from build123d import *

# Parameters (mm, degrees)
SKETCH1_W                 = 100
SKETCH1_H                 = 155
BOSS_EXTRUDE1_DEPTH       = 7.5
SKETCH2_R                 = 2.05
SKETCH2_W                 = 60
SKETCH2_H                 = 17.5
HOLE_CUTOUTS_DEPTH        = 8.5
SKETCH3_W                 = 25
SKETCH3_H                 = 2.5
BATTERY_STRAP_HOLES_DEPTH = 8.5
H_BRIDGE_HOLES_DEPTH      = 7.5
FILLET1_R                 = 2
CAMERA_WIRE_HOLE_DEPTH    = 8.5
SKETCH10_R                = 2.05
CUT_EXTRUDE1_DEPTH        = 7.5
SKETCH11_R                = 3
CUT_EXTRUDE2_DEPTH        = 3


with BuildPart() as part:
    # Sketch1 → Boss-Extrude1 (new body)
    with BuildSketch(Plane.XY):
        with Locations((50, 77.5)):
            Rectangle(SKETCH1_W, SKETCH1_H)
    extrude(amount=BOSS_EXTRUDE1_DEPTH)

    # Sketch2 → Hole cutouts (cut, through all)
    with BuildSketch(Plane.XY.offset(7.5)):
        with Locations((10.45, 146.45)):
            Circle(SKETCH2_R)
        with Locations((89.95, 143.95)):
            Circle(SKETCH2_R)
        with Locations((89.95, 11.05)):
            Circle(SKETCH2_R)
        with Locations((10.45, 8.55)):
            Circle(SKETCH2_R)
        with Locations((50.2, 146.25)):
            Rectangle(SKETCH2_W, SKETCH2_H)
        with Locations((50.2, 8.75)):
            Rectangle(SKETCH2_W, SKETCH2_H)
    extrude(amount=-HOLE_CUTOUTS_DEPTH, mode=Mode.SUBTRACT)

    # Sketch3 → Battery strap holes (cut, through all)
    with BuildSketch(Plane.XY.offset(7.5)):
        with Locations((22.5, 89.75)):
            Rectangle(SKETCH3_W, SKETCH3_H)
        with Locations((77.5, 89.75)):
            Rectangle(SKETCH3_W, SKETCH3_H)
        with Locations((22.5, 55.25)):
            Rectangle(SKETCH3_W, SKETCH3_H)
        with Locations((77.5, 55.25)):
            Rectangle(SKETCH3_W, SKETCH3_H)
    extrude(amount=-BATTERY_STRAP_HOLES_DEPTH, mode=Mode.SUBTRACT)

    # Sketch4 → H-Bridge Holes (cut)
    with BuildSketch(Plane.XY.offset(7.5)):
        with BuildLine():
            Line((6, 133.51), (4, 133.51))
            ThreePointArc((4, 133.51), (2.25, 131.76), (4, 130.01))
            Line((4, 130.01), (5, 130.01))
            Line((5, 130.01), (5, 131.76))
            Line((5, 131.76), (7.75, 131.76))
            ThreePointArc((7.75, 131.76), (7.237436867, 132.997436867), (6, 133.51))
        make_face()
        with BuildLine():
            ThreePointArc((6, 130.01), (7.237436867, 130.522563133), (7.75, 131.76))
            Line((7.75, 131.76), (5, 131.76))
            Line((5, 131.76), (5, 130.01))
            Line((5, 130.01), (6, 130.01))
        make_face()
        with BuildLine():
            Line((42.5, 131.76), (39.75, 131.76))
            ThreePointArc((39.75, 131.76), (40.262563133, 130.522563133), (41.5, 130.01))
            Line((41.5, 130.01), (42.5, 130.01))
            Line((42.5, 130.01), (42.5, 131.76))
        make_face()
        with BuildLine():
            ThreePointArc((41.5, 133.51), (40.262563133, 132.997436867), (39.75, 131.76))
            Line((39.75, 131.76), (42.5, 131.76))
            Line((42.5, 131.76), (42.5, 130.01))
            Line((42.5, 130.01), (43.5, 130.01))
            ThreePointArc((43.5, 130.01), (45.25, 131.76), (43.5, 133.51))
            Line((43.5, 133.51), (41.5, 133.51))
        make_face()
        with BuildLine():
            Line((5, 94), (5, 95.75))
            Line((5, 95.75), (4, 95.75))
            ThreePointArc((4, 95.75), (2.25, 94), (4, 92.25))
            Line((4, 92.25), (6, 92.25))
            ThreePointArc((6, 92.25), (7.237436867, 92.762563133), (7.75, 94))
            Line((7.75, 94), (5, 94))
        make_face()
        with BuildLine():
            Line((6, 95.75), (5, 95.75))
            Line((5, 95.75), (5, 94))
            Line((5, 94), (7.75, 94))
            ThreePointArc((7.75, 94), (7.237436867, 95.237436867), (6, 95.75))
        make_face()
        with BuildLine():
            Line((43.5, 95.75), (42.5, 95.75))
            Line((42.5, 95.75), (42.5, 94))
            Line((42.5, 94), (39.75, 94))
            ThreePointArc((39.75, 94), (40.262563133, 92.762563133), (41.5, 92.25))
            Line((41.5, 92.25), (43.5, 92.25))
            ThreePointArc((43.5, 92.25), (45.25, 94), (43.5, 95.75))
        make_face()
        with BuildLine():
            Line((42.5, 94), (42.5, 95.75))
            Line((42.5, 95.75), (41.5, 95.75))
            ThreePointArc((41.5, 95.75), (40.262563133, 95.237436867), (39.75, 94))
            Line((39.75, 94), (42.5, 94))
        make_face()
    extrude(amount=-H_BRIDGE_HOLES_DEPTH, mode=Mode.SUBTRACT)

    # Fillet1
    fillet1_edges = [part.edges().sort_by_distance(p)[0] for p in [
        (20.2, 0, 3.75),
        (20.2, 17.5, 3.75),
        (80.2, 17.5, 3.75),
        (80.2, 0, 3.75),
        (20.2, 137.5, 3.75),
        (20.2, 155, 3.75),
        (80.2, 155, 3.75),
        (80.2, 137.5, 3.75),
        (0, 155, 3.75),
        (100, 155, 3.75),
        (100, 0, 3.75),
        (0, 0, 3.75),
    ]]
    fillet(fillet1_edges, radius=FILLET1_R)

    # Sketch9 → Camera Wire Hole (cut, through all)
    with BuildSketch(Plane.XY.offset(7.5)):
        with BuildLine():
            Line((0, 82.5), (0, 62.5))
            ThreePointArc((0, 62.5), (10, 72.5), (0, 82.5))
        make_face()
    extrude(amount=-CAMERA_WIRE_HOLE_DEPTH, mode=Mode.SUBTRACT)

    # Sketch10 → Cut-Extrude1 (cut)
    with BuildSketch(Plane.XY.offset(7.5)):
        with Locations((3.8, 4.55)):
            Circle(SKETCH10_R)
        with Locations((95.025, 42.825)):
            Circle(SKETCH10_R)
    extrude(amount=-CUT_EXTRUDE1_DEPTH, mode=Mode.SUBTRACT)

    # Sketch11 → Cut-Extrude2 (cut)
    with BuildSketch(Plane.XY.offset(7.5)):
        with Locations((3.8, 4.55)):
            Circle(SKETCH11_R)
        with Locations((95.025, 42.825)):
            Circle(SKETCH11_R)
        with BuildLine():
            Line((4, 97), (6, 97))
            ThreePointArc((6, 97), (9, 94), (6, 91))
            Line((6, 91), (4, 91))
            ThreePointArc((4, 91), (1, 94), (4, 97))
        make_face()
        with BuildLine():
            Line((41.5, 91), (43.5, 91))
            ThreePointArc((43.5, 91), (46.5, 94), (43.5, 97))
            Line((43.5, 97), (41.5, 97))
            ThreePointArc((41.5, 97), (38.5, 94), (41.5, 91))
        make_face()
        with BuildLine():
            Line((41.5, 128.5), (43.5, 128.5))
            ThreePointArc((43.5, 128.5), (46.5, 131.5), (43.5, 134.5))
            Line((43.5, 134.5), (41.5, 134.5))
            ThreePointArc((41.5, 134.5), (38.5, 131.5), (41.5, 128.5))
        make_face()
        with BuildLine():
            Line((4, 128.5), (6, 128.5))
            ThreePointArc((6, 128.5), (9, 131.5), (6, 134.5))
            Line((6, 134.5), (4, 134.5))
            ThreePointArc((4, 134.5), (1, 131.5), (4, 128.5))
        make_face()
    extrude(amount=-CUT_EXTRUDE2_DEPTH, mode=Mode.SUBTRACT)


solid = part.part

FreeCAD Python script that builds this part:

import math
import FreeCAD as App
import Part
import Sketcher

V = App.Vector
Q = App.Units.Quantity


def edges_at(feature, points):
    """Names of the edges that pass closest to the given points."""
    edges = feature.Shape.Edges
    near = lambda p: min(range(len(edges)), key=lambda i: edges[i].distToShape(Part.Vertex(*p))[0])
    return sorted({f"Edge{near(p) + 1}" for p in points})


def add_polygon(sketch, points):
    """Adds a closed chain of lines whose ends are joined by coincident constraints."""
    first, n = sketch.GeometryCount, len(points)
    for a, b in zip(points, points[1:] + points[:1]):
        sketch.addGeometry(Part.LineSegment(App.Vector(*a, 0), App.Vector(*b, 0)), False)
    for i in range(n):
        sketch.addConstraint(Sketcher.Constraint("Coincident", first + i, 2, first + (i + 1) % n, 1))

doc = App.newDocument("Part")
params = doc.addObject("Spreadsheet::Sheet", "Params")
for row, (alias, value) in enumerate([
    ("sketch1_width", "100 mm"),
    ("sketch1_height", "155 mm"),
    ("pad1_length", "7.5 mm"),
    ("sketch2_diameter", "4.1 mm"),
    ("sketch2_width", "60 mm"),
    ("sketch2_height", "17.5 mm"),
    ("sketch3_width", "25 mm"),
    ("sketch3_height", "2.5 mm"),
    ("sketch4_width", "2 mm"),
    ("sketch4_radius", "1.75 mm"),
    ("pocket3_length", "7.5 mm"),
    ("fillet_radius", "2 mm"),
    ("sketch5_radius", "10 mm"),
    ("sketch6_diameter", "4.1 mm"),
    ("pocket5_length", "7.5 mm"),
    ("sketch7_diameter", "6 mm"),
    ("sketch7_width", "2 mm"),
    ("pocket6_length", "3 mm"),
], start=1):
    params.set(f"A{row}", alias)
    params.set(f"B{row}", "=" + value)
    params.setAlias(f"B{row}", alias)

body = doc.addObject("PartDesign::Body", "Body")

# Sketch on XY plane
sketch1 = body.newObject("Sketcher::SketchObject", "Sketch")
sketch1.AttachmentSupport = (doc.getObject("XY_Plane"), [""])
sketch1.MapMode = "FlatFace"
add_polygon(sketch1, [(0, 155), (0, 0), (100, 0), (100, 155)])  # lines 0-3
sketch1.addConstraint([
    Sketcher.Constraint("Vertical", 0),
    Sketcher.Constraint("Horizontal", 1),
    Sketcher.Constraint("Vertical", 2),
    Sketcher.Constraint("Horizontal", 3),
    Sketcher.Constraint("Coincident", 0, 2, -1, 1),
    Sketcher.Constraint("DistanceX", 1, 1, 1, 2, Q("100 mm")),
    Sketcher.Constraint("DistanceY", 0, 2, 0, 1, Q("155 mm")),
])
sketch1.setExpression("Constraints[9]", "Params.sketch1_width")
sketch1.setExpression("Constraints[10]", "Params.sketch1_height")
pad1 = body.newObject("PartDesign::Pad", "Pad")
pad1.Profile = sketch1
pad1.setExpression("Length", "Params.pad1_length")

# Sketch on XY plane
sketch2 = body.newObject("Sketcher::SketchObject", "Sketch001")
sketch2.AttachmentSupport = (doc.getObject("XY_Plane"), [""])
sketch2.MapMode = "FlatFace"
sketch2.AttachmentOffset = App.Placement(V(0, 0, 7.5), App.Rotation())
sketch2.addGeometry(Part.Circle(V(10.4, 146.4, 0), V(0, 0, 1), 2), False)  # 0
sketch2.addGeometry(Part.Circle(V(90, 143.9, 0), V(0, 0, 1), 2), False)  # 1
sketch2.addGeometry(Part.Circle(V(90, 11.1, 0), V(0, 0, 1), 2), False)  # 2
sketch2.addGeometry(Part.Circle(V(10.4, 8.6, 0), V(0, 0, 1), 2), False)  # 3
add_polygon(sketch2, [(20.2, 155), (20.2, 137.5), (80.2, 137.5), (80.2, 155)])  # lines 4-7
add_polygon(sketch2, [(20.2, 17.5), (20.2, 0), (80.2, 0), (80.2, 17.5)])  # lines 8-11
sketch2.addConstraint([
    Sketcher.Constraint("Vertical", 4),
    Sketcher.Constraint("Horizontal", 5),
    Sketcher.Constraint("Vertical", 6),
    Sketcher.Constraint("Horizontal", 7),
    Sketcher.Constraint("Vertical", 8),
    Sketcher.Constraint("Horizontal", 9),
    Sketcher.Constraint("Vertical", 10),
    Sketcher.Constraint("Horizontal", 11),
    Sketcher.Constraint("Equal", 0, 1),
    Sketcher.Constraint("Equal", 1, 2),
    Sketcher.Constraint("Equal", 2, 3),
    Sketcher.Constraint("PointOnObject", 8, 2, -1),
    Sketcher.Constraint("Vertical", 1, 3, 2, 3),
    Sketcher.Constraint("Vertical", 0, 3, 3, 3),
    Sketcher.Constraint("Vertical", 7, 2, 8, 2),
    Sketcher.Constraint("Vertical", 6, 2, 9, 2),
    Sketcher.Constraint("Equal", 6, 8),
    Sketcher.Constraint("Diameter", 0, Q("4.1 mm")),
    Sketcher.Constraint("DistanceX", 5, 1, 5, 2, Q("60 mm")),
    Sketcher.Constraint("DistanceY", 4, 2, 4, 1, Q("17.5 mm")),
    Sketcher.Constraint("DistanceY", -1, 1, 6, 2, Q("155 mm")),
    Sketcher.Constraint("DistanceX", -1, 1, 4, 2, Q("20.2 mm")),
    Sketcher.Constraint("DistanceX", 0, 3, 1, 3, Q("79.5 mm")),
    Sketcher.Constraint("DistanceY", 1, 3, 0, 3, Q("2.5 mm")),
    Sketcher.Constraint("DistanceY", 2, 3, 1, 3, Q("132.9 mm")),
    Sketcher.Constraint("DistanceY", 3, 3, 2, 3, Q("2.5 mm")),
    Sketcher.Constraint("DistanceX", -1, 1, 0, 3, Q("10.45 mm")),
    Sketcher.Constraint("DistanceY", -1, 1, 0, 3, Q("146.45 mm")),
])
sketch2.setExpression("Constraints[25]", "Params.sketch2_diameter")
sketch2.setExpression("Constraints[26]", "Params.sketch2_width")
sketch2.setExpression("Constraints[27]", "Params.sketch2_height")
pocket1 = body.newObject("PartDesign::Pocket", "Pocket")
pocket1.Profile = sketch2
pocket1.Type = "ThroughAll"

# Sketch on XY plane
sketch3 = body.newObject("Sketcher::SketchObject", "Sketch002")
sketch3.AttachmentSupport = (doc.getObject("XY_Plane"), [""])
sketch3.MapMode = "FlatFace"
sketch3.AttachmentOffset = App.Placement(V(0, 0, 7.5), App.Rotation())
add_polygon(sketch3, [(10, 91), (10, 88.5), (35, 88.5), (35, 91)])  # lines 0-3
add_polygon(sketch3, [(65, 91), (65, 88.5), (90, 88.5), (90, 91)])  # lines 4-7
add_polygon(sketch3, [(10, 56.5), (10, 54), (35, 54), (35, 56.5)])  # lines 8-11
add_polygon(sketch3, [(65, 56.5), (65, 54), (90, 54), (90, 56.5)])  # lines 12-15
sketch3.addConstraint([
    Sketcher.Constraint("Vertical", 0),
    Sketcher.Constraint("Horizontal", 1),
    Sketcher.Constraint("Vertical", 2),
    Sketcher.Constraint("Horizontal", 3),
    Sketcher.Constraint("Vertical", 4),
    Sketcher.Constraint("Horizontal", 5),
    Sketcher.Constraint("Vertical", 6),
    Sketcher.Constraint("Horizontal", 7),
    Sketcher.Constraint("Vertical", 8),
    Sketcher.Constraint("Horizontal", 9),
    Sketcher.Constraint("Vertical", 10),
    Sketcher.Constraint("Horizontal", 11),
    Sketcher.Constraint("Vertical", 12),
    Sketcher.Constraint("Horizontal", 13),
    Sketcher.Constraint("Vertical", 14),
    Sketcher.Constraint("Horizontal", 15),
    Sketcher.Constraint("Horizontal", 1, 2, 4, 2),
    Sketcher.Constraint("Horizontal", 3, 2, 6, 2),
    Sketcher.Constraint("Horizontal", 9, 2, 12, 2),
    Sketcher.Constraint("Horizontal", 11, 2, 14, 2),
    Sketcher.Constraint("Vertical", 3, 2, 8, 2),
    Sketcher.Constraint("Vertical", 2, 2, 9, 2),
    Sketcher.Constraint("Vertical", 7, 2, 12, 2),
    Sketcher.Constraint("Vertical", 6, 2, 13, 2),
    Sketcher.Constraint("Equal", 3, 5),
    Sketcher.Constraint("Equal", 6, 8),
    Sketcher.Constraint("DistanceX", 1, 1, 1, 2, Q("25 mm")),
    Sketcher.Constraint("DistanceY", 0, 2, 0, 1, Q("2.5 mm")),
    Sketcher.Constraint("DistanceX", -1, 1, 0, 2, Q("10 mm")),
    Sketcher.Constraint("DistanceY", -1, 1, 2, 2, Q("91 mm")),
    Sketcher.Constraint("DistanceX", -1, 1, 4, 2, Q("65 mm")),
    Sketcher.Constraint("DistanceY", -1, 1, 8, 2, Q("54 mm")),
])
sketch3.setExpression("Constraints[42]", "Params.sketch3_width")
sketch3.setExpression("Constraints[43]", "Params.sketch3_height")
pocket2 = body.newObject("PartDesign::Pocket", "Pocket001")
pocket2.Profile = sketch3
pocket2.Type = "ThroughAll"

# Sketch on XY plane
sketch4 = body.newObject("Sketcher::SketchObject", "Sketch003")
sketch4.AttachmentSupport = (doc.getObject("XY_Plane"), [""])
sketch4.MapMode = "FlatFace"
sketch4.AttachmentOffset = App.Placement(V(0, 0, 7.5), App.Rotation())
sketch4.addGeometry([
    Part.LineSegment(V(6, 133.5, 0), V(4, 133.5, 0)),  # 0
    Part.ArcOfCircle(Part.Circle(V(4, 131.8, 0), V(0, 0, 1), 1.8), math.radians(90), math.radians(270)),  # 1
    Part.LineSegment(V(4, 130, 0), V(6, 130, 0)),  # 2
    Part.ArcOfCircle(Part.Circle(V(6, 131.8, 0), V(0, 0, 1), 1.8), math.radians(-90), math.radians(0)),  # 3
    Part.ArcOfCircle(Part.Circle(V(6, 131.8, 0), V(0, 0, 1), 1.8), math.radians(0), math.radians(90)),  # 4
    Part.ArcOfCircle(Part.Circle(V(41.5, 131.8, 0), V(0, 0, 1), 1.8), math.radians(180), math.radians(270)),  # 5
    Part.LineSegment(V(41.5, 130, 0), V(43.5, 130, 0)),  # 6
    Part.ArcOfCircle(Part.Circle(V(43.5, 131.8, 0), V(0, 0, 1), 1.8), math.radians(-90), math.radians(90)),  # 7
    Part.LineSegment(V(43.5, 133.5, 0), V(41.5, 133.5, 0)),  # 8
    Part.ArcOfCircle(Part.Circle(V(41.5, 131.8, 0), V(0, 0, 1), 1.8), math.radians(90), math.radians(180)),  # 9
    Part.ArcOfCircle(Part.Circle(V(4, 94, 0), V(0, 0, 1), 1.8), math.radians(90), math.radians(270)),  # 10
    Part.LineSegment(V(4, 92.2, 0), V(6, 92.2, 0)),  # 11
    Part.ArcOfCircle(Part.Circle(V(6, 94, 0), V(0, 0, 1), 1.8), math.radians(-90), math.radians(0)),  # 12
    Part.ArcOfCircle(Part.Circle(V(6, 94, 0), V(0, 0, 1), 1.8), math.radians(0), math.radians(90)),  # 13
    Part.LineSegment(V(6, 95.8, 0), V(4, 95.8, 0)),  # 14
    Part.LineSegment(V(43.5, 95.8, 0), V(41.5, 95.8, 0)),  # 15
    Part.ArcOfCircle(Part.Circle(V(41.5, 94, 0), V(0, 0, 1), 1.8), math.radians(90), math.radians(180)),  # 16
    Part.ArcOfCircle(Part.Circle(V(41.5, 94, 0), V(0, 0, 1), 1.8), math.radians(180), math.radians(270)),  # 17
    Part.LineSegment(V(41.5, 92.2, 0), V(43.5, 92.2, 0)),  # 18
    Part.ArcOfCircle(Part.Circle(V(43.5, 94, 0), V(0, 0, 1), 1.8), math.radians(-90), math.radians(90)),  # 19
], False)
sketch4.addConstraint([
    Sketcher.Constraint("Tangent", 0, 2, 1, 1),
    Sketcher.Constraint("Tangent", 1, 2, 2, 1),
    Sketcher.Constraint("Tangent", 2, 2, 3, 1),
    Sketcher.Constraint("Tangent", 3, 2, 4, 1),
    Sketcher.Constraint("Tangent", 4, 2, 0, 1),
    Sketcher.Constraint("Tangent", 5, 2, 6, 1),
    Sketcher.Constraint("Tangent", 6, 2, 7, 1),
    Sketcher.Constraint("Tangent", 7, 2, 8, 1),
    Sketcher.Constraint("Tangent", 8, 2, 9, 1),
    Sketcher.Constraint("Tangent", 9, 2, 5, 1),
    Sketcher.Constraint("Tangent", 10, 2, 11, 1),
    Sketcher.Constraint("Tangent", 11, 2, 12, 1),
    Sketcher.Constraint("Tangent", 12, 2, 13, 1),
    Sketcher.Constraint("Tangent", 13, 2, 14, 1),
    Sketcher.Constraint("Tangent", 14, 2, 10, 1),
    Sketcher.Constraint("Tangent", 15, 2, 16, 1),
    Sketcher.Constraint("Tangent", 16, 2, 17, 1),
    Sketcher.Constraint("Tangent", 17, 2, 18, 1),
    Sketcher.Constraint("Tangent", 18, 2, 19, 1),
    Sketcher.Constraint("Tangent", 19, 2, 15, 1),
    Sketcher.Constraint("Horizontal", 0),
    Sketcher.Constraint("Horizontal", 2),
    Sketcher.Constraint("Horizontal", 6),
    Sketcher.Constraint("Horizontal", 8),
    Sketcher.Constraint("Horizontal", 11),
    Sketcher.Constraint("Horizontal", 14),
    Sketcher.Constraint("Horizontal", 15),
    Sketcher.Constraint("Horizontal", 18),
    Sketcher.Constraint("Equal", 1, 3),
    Sketcher.Constraint("Equal", 4, 5),
    Sketcher.Constraint("Equal", 5, 7),
    Sketcher.Constraint("Equal", 9, 10),
    Sketcher.Constraint("Equal", 10, 12),
    Sketcher.Constraint("Equal", 13, 16),
    Sketcher.Constraint("Equal", 16, 17),
    Sketcher.Constraint("Horizontal", 4, 3, 5, 3),
    Sketcher.Constraint("Horizontal", 13, 3, 16, 3),
    Sketcher.Constraint("Horizontal", 9, 3, 3, 2),
    Sketcher.Constraint("Horizontal", 3, 2, 9, 2),
    Sketcher.Constraint("Horizontal", 19, 3, 12, 2),
    Sketcher.Constraint("Horizontal", 12, 2, 16, 2),
    Sketcher.Constraint("Vertical", 1, 3, 10, 3),
    Sketcher.Constraint("Vertical", 4, 3, 12, 3),
    Sketcher.Constraint("Vertical", 9, 3, 16, 3),
    Sketcher.Constraint("Vertical", 7, 3, 19, 3),
    Sketcher.Constraint("Equal", 2, 6),
    Sketcher.Constraint("DistanceX", 0, 2, 0, 1, Q("2 mm")),
    Sketcher.Constraint("Radius", 1, Q("1.75 mm")),
    Sketcher.Constraint("DistanceX", -1, 1, 1, 3, Q("4 mm")),
    Sketcher.Constraint("DistanceY", -1, 1, 10, 3, Q("94 mm")),
    Sketcher.Constraint("DistanceX", 12, 2, 16, 2, Q("32 mm")),
    Sketcher.Constraint("DistanceY", -1, 1, 1, 3, Q("131.76 mm")),
])
sketch4.setExpression("Constraints[46]", "Params.sketch4_width")
sketch4.setExpression("Constraints[47]", "Params.sketch4_radius")
pocket3 = body.newObject("PartDesign::Pocket", "Pocket002")
pocket3.Profile = sketch4
pocket3.setExpression("Length", "Params.pocket3_length")
doc.recompute()

fillet = body.newObject("PartDesign::Fillet", "Fillet")
fillet.Base = (pocket3, edges_at(pocket3, [
    (20.2, 0, 3.75),
    (20.2, 17.5, 3.75),
    (80.2, 17.5, 3.75),
    (80.2, 0, 3.75),
    (20.2, 137.5, 3.75),
    (20.2, 155, 3.75),
    (80.2, 155, 3.75),
    (80.2, 137.5, 3.75),
    (0, 155, 3.75),
    (100, 155, 3.75),
    (100, 0, 3.75),
    (0, 0, 3.75),
]))
fillet.setExpression("Radius", "Params.fillet_radius")

# Sketch on XY plane
sketch5 = body.newObject("Sketcher::SketchObject", "Sketch004")
sketch5.AttachmentSupport = (doc.getObject("XY_Plane"), [""])
sketch5.MapMode = "FlatFace"
sketch5.AttachmentOffset = App.Placement(V(0, 0, 7.5), App.Rotation())
sketch5.addGeometry([
    Part.LineSegment(V(0, 82, 0), V(0, 62, 0)),
    Part.ArcOfCircle(Part.Circle(V(0, 72, 0), V(0, 0, 1), 10), math.radians(-90), math.radians(90)),
], False)
sketch5.addConstraint([
    Sketcher.Constraint("Coincident", 0, 1, 1, 2),
    Sketcher.Constraint("Coincident", 1, 1, 0, 2),
    Sketcher.Constraint("Vertical", 0),
    Sketcher.Constraint("PointOnObject", 1, 3, -2),
    Sketcher.Constraint("PointOnObject", 0, 1, -2),
    Sketcher.Constraint("Radius", 1, Q("10 mm")),
    Sketcher.Constraint("DistanceY", -1, 1, 1, 3, Q("72.5 mm")),
])
sketch5.setExpression("Constraints[5]", "Params.sketch5_radius")
pocket4 = body.newObject("PartDesign::Pocket", "Pocket003")
pocket4.Profile = sketch5
pocket4.Type = "ThroughAll"

# Sketch on XY plane
sketch6 = body.newObject("Sketcher::SketchObject", "Sketch005")
sketch6.AttachmentSupport = (doc.getObject("XY_Plane"), [""])
sketch6.MapMode = "FlatFace"
sketch6.AttachmentOffset = App.Placement(V(0, 0, 7.5), App.Rotation())
sketch6.addGeometry([
    Part.Circle(V(3.8, 4.5, 0), V(0, 0, 1), 2),
    Part.Circle(V(95, 42.8, 0), V(0, 0, 1), 2),
], False)
sketch6.addConstraint([
    Sketcher.Constraint("Equal", 0, 1),
    Sketcher.Constraint("Diameter", 0, Q("4.1 mm")),
    Sketcher.Constraint("DistanceX", -1, 1, 0, 3, Q("3.8 mm")),
    Sketcher.Constraint("DistanceY", -1, 1, 0, 3, Q("4.55 mm")),
    Sketcher.Constraint("DistanceX", -1, 1, 1, 3, Q("95.025 mm")),
    Sketcher.Constraint("DistanceY", -1, 1, 1, 3, Q("42.825 mm")),
])
sketch6.setExpression("Constraints[1]", "Params.sketch6_diameter")
pocket5 = body.newObject("PartDesign::Pocket", "Pocket004")
pocket5.Profile = sketch6
pocket5.setExpression("Length", "Params.pocket5_length")

# Sketch on XY plane
sketch7 = body.newObject("Sketcher::SketchObject", "Sketch006")
sketch7.AttachmentSupport = (doc.getObject("XY_Plane"), [""])
sketch7.MapMode = "FlatFace"
sketch7.AttachmentOffset = App.Placement(V(0, 0, 7.5), App.Rotation())
sketch7.addGeometry([
    Part.Circle(V(3.8, 4.5, 0), V(0, 0, 1), 3),  # 0
    Part.Circle(V(95, 42.8, 0), V(0, 0, 1), 3),  # 1
    Part.LineSegment(V(6, 97, 0), V(4, 97, 0)),  # 2
    Part.ArcOfCircle(Part.Circle(V(4, 94, 0), V(0, 0, 1), 3), math.radians(90), math.radians(270)),  # 3
    Part.LineSegment(V(4, 91, 0), V(6, 91, 0)),  # 4
    Part.ArcOfCircle(Part.Circle(V(6, 94, 0), V(0, 0, 1), 3), math.radians(-90), math.radians(90)),  # 5
    Part.LineSegment(V(41.5, 91, 0), V(43.5, 91, 0)),  # 6
    Part.ArcOfCircle(Part.Circle(V(43.5, 94, 0), V(0, 0, 1), 3), math.radians(-90), math.radians(90)),  # 7
    Part.LineSegment(V(43.5, 97, 0), V(41.5, 97, 0)),  # 8
    Part.ArcOfCircle(Part.Circle(V(41.5, 94, 0), V(0, 0, 1), 3), math.radians(90), math.radians(270)),  # 9
    Part.LineSegment(V(41.5, 128.5, 0), V(43.5, 128.5, 0)),  # 10
    Part.ArcOfCircle(Part.Circle(V(43.5, 131.5, 0), V(0, 0, 1), 3), math.radians(-90), math.radians(90)),  # 11
    Part.LineSegment(V(43.5, 134.5, 0), V(41.5, 134.5, 0)),  # 12
    Part.ArcOfCircle(Part.Circle(V(41.5, 131.5, 0), V(0, 0, 1), 3), math.radians(90), math.radians(270)),  # 13
    Part.LineSegment(V(4, 128.5, 0), V(6, 128.5, 0)),  # 14
    Part.ArcOfCircle(Part.Circle(V(6, 131.5, 0), V(0, 0, 1), 3), math.radians(-90), math.radians(90)),  # 15
    Part.LineSegment(V(6, 134.5, 0), V(4, 134.5, 0)),  # 16
    Part.ArcOfCircle(Part.Circle(V(4, 131.5, 0), V(0, 0, 1), 3), math.radians(90), math.radians(270)),  # 17
], False)
sketch7.addConstraint([
    Sketcher.Constraint("Tangent", 2, 2, 3, 1),
    Sketcher.Constraint("Tangent", 3, 2, 4, 1),
    Sketcher.Constraint("Tangent", 4, 2, 5, 1),
    Sketcher.Constraint("Tangent", 5, 2, 2, 1),
    Sketcher.Constraint("Tangent", 6, 2, 7, 1),
    Sketcher.Constraint("Tangent", 7, 2, 8, 1),
    Sketcher.Constraint("Tangent", 8, 2, 9, 1),
    Sketcher.Constraint("Tangent", 9, 2, 6, 1),
    Sketcher.Constraint("Tangent", 10, 2, 11, 1),
    Sketcher.Constraint("Tangent", 11, 2, 12, 1),
    Sketcher.Constraint("Tangent", 12, 2, 13, 1),
    Sketcher.Constraint("Tangent", 13, 2, 10, 1),
    Sketcher.Constraint("Tangent", 14, 2, 15, 1),
    Sketcher.Constraint("Tangent", 15, 2, 16, 1),
    Sketcher.Constraint("Tangent", 16, 2, 17, 1),
    Sketcher.Constraint("Tangent", 17, 2, 14, 1),
    Sketcher.Constraint("Horizontal", 2),
    Sketcher.Constraint("Horizontal", 4),
    Sketcher.Constraint("Horizontal", 6),
    Sketcher.Constraint("Horizontal", 8),
    Sketcher.Constraint("Horizontal", 10),
    Sketcher.Constraint("Horizontal", 12),
    Sketcher.Constraint("Horizontal", 14),
    Sketcher.Constraint("Horizontal", 16),
    Sketcher.Constraint("Equal", 0, 1),
    Sketcher.Constraint("Equal", 1, 3),
    Sketcher.Constraint("Equal", 5, 7),
    Sketcher.Constraint("Equal", 9, 11),
    Sketcher.Constraint("Equal", 13, 15),
    Sketcher.Constraint("Horizontal", 5, 3, 7, 3),
    Sketcher.Constraint("Horizontal", 13, 3, 15, 3),
    Sketcher.Constraint("Vertical", 7, 3, 11, 3),
    Sketcher.Constraint("Vertical", 9, 3, 13, 3),
    Sketcher.Constraint("Vertical", 5, 3, 15, 3),
    Sketcher.Constraint("Vertical", 3, 3, 17, 3),
    Sketcher.Constraint("Equal", 4, 6),
    Sketcher.Constraint("Diameter", 0, Q("6 mm")),
    Sketcher.Constraint("DistanceX", 2, 2, 2, 1, Q("2 mm")),
    Sketcher.Constraint("DistanceX", -1, 1, 3, 3, Q("4 mm")),
    Sketcher.Constraint("DistanceY", -1, 1, 3, 3, Q("94 mm")),
    Sketcher.Constraint("DistanceX", -1, 1, 0, 3, Q("3.8 mm")),
    Sketcher.Constraint("DistanceX", -1, 1, 7, 3, Q("43.5 mm")),
    Sketcher.Constraint("DistanceY", -1, 1, 11, 3, Q("131.5 mm")),
    Sketcher.Constraint("DistanceY", -1, 1, 0, 3, Q("4.55 mm")),
    Sketcher.Constraint("DistanceX", -1, 1, 1, 3, Q("95.025 mm")),
    Sketcher.Constraint("DistanceY", -1, 1, 1, 3, Q("42.825 mm")),
])
sketch7.setExpression("Constraints[36]", "Params.sketch7_diameter")
sketch7.setExpression("Constraints[37]", "Params.sketch7_width")
pocket6 = body.newObject("PartDesign::Pocket", "Pocket005")
pocket6.Profile = sketch7
pocket6.setExpression("Length", "Params.pocket6_length")

doc.recompute()
